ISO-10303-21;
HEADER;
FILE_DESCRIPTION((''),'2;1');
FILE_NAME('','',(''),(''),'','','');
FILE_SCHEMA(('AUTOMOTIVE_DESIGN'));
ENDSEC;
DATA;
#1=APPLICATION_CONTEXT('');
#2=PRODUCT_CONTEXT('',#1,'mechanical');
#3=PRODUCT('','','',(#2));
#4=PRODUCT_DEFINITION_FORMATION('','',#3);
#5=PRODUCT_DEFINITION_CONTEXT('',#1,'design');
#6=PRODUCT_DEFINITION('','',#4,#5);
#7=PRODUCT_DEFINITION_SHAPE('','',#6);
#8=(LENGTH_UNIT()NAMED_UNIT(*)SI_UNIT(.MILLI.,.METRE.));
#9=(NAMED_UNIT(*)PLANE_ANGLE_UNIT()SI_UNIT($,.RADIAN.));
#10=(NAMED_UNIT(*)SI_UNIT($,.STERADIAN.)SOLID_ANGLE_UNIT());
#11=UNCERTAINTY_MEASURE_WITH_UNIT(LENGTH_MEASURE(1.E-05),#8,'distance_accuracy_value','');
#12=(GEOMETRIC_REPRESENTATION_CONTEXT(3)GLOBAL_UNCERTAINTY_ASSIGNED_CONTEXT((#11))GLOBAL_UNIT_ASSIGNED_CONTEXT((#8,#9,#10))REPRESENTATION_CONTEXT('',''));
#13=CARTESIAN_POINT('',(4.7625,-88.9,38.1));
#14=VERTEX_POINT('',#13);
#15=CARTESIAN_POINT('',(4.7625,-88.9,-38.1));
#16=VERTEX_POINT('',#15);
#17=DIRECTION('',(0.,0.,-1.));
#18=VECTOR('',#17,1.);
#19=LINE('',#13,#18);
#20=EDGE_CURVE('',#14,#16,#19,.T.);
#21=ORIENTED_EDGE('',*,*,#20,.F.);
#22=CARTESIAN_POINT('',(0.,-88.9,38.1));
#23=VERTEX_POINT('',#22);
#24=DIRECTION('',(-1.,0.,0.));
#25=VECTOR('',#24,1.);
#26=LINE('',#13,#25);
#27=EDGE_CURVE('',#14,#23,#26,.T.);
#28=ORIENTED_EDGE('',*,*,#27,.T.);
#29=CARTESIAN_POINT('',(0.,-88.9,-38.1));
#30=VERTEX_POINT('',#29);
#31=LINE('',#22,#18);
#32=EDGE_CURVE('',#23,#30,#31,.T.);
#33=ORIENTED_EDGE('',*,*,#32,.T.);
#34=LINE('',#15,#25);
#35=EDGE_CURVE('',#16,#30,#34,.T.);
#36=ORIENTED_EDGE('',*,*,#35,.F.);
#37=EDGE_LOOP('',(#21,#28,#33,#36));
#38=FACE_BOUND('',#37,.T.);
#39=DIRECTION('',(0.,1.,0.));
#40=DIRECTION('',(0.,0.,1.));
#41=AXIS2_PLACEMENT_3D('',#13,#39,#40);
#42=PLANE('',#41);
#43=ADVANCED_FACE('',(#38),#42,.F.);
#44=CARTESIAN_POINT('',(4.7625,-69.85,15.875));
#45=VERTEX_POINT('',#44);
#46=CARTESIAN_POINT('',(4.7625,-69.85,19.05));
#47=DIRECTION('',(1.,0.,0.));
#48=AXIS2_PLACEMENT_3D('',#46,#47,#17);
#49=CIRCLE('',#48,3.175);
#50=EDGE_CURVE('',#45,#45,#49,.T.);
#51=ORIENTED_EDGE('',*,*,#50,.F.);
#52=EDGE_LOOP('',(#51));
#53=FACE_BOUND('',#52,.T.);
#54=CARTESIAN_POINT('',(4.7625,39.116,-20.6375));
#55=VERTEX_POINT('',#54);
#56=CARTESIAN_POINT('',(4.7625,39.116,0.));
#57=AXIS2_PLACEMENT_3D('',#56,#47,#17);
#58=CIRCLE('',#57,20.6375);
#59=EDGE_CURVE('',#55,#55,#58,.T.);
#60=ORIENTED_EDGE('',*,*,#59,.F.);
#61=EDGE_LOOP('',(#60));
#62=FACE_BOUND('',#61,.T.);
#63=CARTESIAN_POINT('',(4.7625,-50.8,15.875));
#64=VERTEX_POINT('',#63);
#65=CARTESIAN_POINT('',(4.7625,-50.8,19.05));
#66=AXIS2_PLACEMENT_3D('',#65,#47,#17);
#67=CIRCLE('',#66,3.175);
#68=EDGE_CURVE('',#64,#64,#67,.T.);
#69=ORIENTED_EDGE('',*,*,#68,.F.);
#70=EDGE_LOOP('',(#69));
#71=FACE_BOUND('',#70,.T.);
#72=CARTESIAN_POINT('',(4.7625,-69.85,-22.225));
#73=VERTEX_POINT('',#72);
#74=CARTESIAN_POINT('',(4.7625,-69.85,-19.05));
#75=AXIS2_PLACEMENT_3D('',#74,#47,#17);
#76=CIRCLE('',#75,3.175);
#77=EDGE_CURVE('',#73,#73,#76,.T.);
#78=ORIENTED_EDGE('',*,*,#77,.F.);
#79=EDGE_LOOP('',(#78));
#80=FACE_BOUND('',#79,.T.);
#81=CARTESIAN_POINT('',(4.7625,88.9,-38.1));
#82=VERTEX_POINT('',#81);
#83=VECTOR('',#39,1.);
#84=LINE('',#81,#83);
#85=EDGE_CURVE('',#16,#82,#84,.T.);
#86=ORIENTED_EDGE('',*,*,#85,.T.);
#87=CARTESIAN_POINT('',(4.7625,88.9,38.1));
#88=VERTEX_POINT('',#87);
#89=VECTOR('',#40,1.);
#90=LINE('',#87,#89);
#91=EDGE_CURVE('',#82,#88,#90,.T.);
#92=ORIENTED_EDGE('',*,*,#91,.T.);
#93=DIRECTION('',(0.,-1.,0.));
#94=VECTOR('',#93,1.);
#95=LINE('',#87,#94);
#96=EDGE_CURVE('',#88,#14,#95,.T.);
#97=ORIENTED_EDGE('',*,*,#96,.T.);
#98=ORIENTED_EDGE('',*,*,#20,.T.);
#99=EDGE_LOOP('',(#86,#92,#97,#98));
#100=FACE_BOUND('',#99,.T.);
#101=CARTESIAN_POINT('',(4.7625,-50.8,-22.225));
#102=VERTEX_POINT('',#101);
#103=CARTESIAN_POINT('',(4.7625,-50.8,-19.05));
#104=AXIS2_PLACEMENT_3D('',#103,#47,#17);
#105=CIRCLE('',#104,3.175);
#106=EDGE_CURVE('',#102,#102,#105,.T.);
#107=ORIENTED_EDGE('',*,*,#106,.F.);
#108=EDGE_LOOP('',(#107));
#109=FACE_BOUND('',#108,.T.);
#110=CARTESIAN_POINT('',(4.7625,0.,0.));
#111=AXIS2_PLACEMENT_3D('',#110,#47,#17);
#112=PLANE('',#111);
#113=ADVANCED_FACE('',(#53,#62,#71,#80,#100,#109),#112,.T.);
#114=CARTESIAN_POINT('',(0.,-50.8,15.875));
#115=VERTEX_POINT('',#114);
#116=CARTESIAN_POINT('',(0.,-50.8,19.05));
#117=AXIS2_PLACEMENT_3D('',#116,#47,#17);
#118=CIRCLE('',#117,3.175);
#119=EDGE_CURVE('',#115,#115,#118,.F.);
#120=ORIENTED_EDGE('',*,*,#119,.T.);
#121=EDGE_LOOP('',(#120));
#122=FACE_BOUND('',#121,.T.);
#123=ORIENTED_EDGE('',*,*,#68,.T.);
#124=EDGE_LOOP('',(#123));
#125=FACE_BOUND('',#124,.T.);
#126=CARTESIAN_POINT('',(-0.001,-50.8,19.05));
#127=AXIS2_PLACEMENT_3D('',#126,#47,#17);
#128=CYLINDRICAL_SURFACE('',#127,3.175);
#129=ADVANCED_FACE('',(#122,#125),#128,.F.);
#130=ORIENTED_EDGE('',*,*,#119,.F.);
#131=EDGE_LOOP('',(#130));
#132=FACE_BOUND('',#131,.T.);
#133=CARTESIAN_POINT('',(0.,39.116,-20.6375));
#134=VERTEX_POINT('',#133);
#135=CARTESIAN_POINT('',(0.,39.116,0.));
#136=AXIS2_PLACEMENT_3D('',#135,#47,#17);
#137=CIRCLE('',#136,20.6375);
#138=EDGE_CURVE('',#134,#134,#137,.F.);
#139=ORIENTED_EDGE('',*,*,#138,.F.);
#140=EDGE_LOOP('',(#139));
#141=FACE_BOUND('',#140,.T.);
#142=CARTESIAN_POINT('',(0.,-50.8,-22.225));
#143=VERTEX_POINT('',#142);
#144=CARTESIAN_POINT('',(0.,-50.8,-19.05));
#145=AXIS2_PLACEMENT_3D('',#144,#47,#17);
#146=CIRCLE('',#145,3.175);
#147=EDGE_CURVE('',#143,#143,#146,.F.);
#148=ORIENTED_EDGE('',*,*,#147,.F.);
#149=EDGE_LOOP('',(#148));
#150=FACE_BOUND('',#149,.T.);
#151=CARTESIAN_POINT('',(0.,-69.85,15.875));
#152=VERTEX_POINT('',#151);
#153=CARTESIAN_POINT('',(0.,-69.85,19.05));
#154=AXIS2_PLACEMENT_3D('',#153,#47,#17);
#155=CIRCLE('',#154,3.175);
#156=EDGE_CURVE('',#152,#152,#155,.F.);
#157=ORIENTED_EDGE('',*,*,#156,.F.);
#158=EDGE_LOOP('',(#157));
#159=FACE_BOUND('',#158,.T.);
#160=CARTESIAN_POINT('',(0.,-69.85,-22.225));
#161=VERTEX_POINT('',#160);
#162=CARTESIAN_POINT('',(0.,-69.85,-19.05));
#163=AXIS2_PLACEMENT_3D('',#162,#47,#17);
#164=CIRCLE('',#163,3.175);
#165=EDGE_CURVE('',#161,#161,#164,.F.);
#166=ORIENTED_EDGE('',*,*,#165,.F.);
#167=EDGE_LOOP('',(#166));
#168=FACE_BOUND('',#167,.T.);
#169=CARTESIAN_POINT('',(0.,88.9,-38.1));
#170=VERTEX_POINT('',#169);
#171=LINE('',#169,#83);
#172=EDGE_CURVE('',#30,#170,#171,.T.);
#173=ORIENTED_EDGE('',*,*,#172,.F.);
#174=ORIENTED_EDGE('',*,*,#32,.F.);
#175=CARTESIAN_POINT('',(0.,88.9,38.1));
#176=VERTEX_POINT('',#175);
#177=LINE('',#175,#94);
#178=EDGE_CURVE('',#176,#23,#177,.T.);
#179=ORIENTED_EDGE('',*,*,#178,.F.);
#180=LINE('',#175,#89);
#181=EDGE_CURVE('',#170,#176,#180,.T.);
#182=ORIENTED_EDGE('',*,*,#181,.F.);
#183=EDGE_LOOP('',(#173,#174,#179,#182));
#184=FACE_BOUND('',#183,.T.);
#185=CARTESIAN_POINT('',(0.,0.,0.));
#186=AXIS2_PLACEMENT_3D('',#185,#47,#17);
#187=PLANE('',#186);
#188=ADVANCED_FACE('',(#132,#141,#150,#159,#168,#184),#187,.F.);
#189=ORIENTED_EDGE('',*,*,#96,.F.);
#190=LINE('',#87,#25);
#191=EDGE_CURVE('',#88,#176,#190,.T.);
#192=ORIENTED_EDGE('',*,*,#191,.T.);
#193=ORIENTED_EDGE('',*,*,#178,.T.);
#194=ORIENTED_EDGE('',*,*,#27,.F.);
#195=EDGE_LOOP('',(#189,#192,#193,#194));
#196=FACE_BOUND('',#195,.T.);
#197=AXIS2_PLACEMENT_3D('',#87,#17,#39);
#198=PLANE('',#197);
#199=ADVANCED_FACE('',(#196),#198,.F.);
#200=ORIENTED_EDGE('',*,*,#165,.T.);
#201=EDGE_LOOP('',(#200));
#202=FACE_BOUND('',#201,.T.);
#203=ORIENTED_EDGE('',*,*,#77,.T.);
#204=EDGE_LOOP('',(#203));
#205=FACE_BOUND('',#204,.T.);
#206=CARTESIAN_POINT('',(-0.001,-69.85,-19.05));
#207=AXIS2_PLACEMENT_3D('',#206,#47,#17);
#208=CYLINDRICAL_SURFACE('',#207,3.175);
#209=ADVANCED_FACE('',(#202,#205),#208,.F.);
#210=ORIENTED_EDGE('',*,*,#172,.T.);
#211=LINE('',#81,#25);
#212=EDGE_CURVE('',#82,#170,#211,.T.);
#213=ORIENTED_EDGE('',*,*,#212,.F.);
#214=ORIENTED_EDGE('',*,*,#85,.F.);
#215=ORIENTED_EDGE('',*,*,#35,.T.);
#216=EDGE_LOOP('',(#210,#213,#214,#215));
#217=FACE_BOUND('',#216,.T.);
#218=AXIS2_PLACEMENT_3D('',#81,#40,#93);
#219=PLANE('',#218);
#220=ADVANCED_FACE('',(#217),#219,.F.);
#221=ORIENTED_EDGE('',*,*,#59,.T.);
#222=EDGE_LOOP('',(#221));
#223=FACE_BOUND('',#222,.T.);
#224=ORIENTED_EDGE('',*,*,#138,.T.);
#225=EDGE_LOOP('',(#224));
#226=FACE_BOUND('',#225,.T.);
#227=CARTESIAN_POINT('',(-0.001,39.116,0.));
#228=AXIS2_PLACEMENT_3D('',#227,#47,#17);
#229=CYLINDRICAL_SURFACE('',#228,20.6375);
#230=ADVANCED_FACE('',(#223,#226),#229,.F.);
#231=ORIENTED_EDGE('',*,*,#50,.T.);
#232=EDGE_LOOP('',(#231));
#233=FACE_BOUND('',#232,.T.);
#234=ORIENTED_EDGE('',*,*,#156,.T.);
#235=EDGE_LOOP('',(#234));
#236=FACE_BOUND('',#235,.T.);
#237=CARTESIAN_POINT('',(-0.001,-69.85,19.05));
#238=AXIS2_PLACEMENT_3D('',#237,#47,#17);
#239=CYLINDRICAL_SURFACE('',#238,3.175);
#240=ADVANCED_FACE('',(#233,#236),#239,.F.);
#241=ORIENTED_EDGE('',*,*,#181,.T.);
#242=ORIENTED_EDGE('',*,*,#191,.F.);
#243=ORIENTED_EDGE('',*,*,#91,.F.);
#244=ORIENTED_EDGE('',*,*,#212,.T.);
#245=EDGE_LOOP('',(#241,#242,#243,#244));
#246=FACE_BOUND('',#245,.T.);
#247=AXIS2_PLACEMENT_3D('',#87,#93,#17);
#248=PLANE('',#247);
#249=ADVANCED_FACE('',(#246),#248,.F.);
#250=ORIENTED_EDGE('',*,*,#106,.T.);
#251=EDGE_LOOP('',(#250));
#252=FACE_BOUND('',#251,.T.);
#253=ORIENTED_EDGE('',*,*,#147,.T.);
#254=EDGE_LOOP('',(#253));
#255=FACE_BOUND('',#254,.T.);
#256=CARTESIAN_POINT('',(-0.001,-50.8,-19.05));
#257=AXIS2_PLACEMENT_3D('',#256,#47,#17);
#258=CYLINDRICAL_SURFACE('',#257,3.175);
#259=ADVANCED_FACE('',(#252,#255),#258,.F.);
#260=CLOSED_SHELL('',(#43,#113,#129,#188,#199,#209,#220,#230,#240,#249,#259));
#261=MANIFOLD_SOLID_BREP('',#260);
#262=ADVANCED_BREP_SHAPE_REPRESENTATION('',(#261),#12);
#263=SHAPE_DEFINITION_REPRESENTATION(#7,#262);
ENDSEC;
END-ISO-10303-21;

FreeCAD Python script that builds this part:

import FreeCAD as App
import Part
import Sketcher
Q = App.Units.Quantity

doc = App.newDocument("Part")
body = doc.addObject("PartDesign::Body", "Body")

# Sketch on YZ plane
sketch1 = body.newObject("Sketcher::SketchObject", "Sketch")
sketch1.AttachmentSupport = (doc.getObject("YZ_Plane"), [""])
sketch1.MapMode = "FlatFace"
sketch1.addGeometry([
    Part.LineSegment(App.Vector(89, 38, 0), App.Vector(-89, 38, 0)),
    Part.LineSegment(App.Vector(-89, 38, 0), App.Vector(-89, -38, 0)),
    Part.LineSegment(App.Vector(-89, -38, 0), App.Vector(89, -38, 0)),
    Part.LineSegment(App.Vector(89, -38, 0), App.Vector(89, 38, 0)),
], False)
sketch1.addConstraint([
    Sketcher.Constraint("Coincident", 0, 2, 1, 1),
    Sketcher.Constraint("Coincident", 1, 2, 2, 1),
    Sketcher.Constraint("Coincident", 2, 2, 3, 1),
    Sketcher.Constraint("Coincident", 3, 2, 0, 1),
    Sketcher.Constraint("Horizontal", 0),
    Sketcher.Constraint("Vertical", 1),
    Sketcher.Constraint("Horizontal", 2),
    Sketcher.Constraint("Vertical", 3),
    Sketcher.Constraint("Symmetric", 0, 2, 2, 2, -1, 1),
    Sketcher.Constraint("DistanceX", 0, 2, 0, 1, Q("7 in")),
    Sketcher.Constraint("DistanceY", 1, 2, 1, 1, Q("3 in")),
])
pad1 = body.newObject("PartDesign::Pad", "Pad")
pad1.Profile = sketch1
pad1.Length = Q("0.1875 in")

# Sketch on YZ plane
sketch2 = body.newObject("Sketcher::SketchObject", "Sketch001")
sketch2.AttachmentSupport = (doc.getObject("YZ_Plane"), [""])
sketch2.MapMode = "FlatFace"
sketch2.AttachmentOffset = App.Placement(App.Vector(0, 0, 0.1875 * 25.4), App.Rotation())
sketch2.addGeometry(Part.Circle(App.Vector(39, 0, 0), App.Vector(0, 0, 1), 21), False)
sketch2.addConstraint([
    Sketcher.Constraint("PointOnObject", 0, 3, -1),
    Sketcher.Constraint("Diameter", 0, Q("1.625 in")),
    Sketcher.Constraint("DistanceX", -1, 1, 0, 3, Q("1.54 in")),
])
pocket1 = body.newObject("PartDesign::Pocket", "Pocket")
pocket1.Profile = sketch2
pocket1.Type = "UpToFirst"

# Sketch on YZ plane
sketch3 = body.newObject("Sketcher::SketchObject", "Sketch002")
sketch3.AttachmentSupport = (doc.getObject("YZ_Plane"), [""])
sketch3.MapMode = "FlatFace"
sketch3.AttachmentOffset = App.Placement(App.Vector(0, 0, 0.1875 * 25.4), App.Rotation())
sketch3.addGeometry(Part.Circle(App.Vector(-50.8, 19.1, 0), App.Vector(0, 0, 1), 3.2), False)
sketch3.addConstraint([
    Sketcher.Constraint("Diameter", 0, Q("0.25 in")),
    Sketcher.Constraint("DistanceX", 0, 3, -1, 1, Q("2 in")),
    Sketcher.Constraint("DistanceY", -1, 1, 0, 3, Q("0.75 in")),
])
pocket2 = body.newObject("PartDesign::Pocket", "Pocket001")
pocket2.Profile = sketch3
pocket2.Type = "UpToFirst"

# Sketch on YZ plane
sketch4 = body.newObject("Sketcher::SketchObject", "Sketch003")
sketch4.AttachmentSupport = (doc.getObject("YZ_Plane"), [""])
sketch4.MapMode = "FlatFace"
sketch4.AttachmentOffset = App.Placement(App.Vector(0, 0, 0.1875 * 25.4), App.Rotation())
sketch4.addGeometry(Part.Circle(App.Vector(-50.8, -19.1, 0), App.Vector(0, 0, 1), 3.2), False)
sketch4.addConstraint([
    Sketcher.Constraint("Diameter", 0, Q("0.25 in")),
    Sketcher.Constraint("DistanceX", 0, 3, -1, 1, Q("2 in")),
    Sketcher.Constraint("DistanceY", 0, 3, -1, 1, Q("0.75 in")),
])
pocket3 = body.newObject("PartDesign::Pocket", "Pocket002")
pocket3.Profile = sketch4
pocket3.Type = "UpToFirst"

# Sketch on YZ plane
sketch5 = body.newObject("Sketcher::SketchObject", "Sketch004")
sketch5.AttachmentSupport = (doc.getObject("YZ_Plane"), [""])
sketch5.MapMode = "FlatFace"
sketch5.AttachmentOffset = App.Placement(App.Vector(0, 0, 0.1875 * 25.4), App.Rotation())
sketch5.addGeometry(Part.Circle(App.Vector(-69.8, -19.1, 0), App.Vector(0, 0, 1), 3.2), False)
sketch5.addConstraint([
    Sketcher.Constraint("Diameter", 0, Q("0.25 in")),
    Sketcher.Constraint("DistanceX", 0, 3, -1, 1, Q("2.75 in")),
    Sketcher.Constraint("DistanceY", 0, 3, -1, 1, Q("0.75 in")),
])
pocket4 = body.newObject("PartDesign::Pocket", "Pocket003")
pocket4.Profile = sketch5
pocket4.Type = "UpToFirst"

# Sketch on YZ plane
sketch6 = body.newObject("Sketcher::SketchObject", "Sketch005")
sketch6.AttachmentSupport = (doc.getObject("YZ_Plane"), [""])
sketch6.MapMode = "FlatFace"
sketch6.AttachmentOffset = App.Placement(App.Vector(0, 0, 0.1875 * 25.4), App.Rotation())
sketch6.addGeometry(Part.Circle(App.Vector(-69.8, 19.1, 0), App.Vector(0, 0, 1), 3.2), False)
sketch6.addConstraint([
    Sketcher.Constraint("Diameter", 0, Q("0.25 in")),
    Sketcher.Constraint("DistanceX", 0, 3, -1, 1, Q("2.75 in")),
    Sketcher.Constraint("DistanceY", -1, 1, 0, 3, Q("0.75 in")),
])
pocket5 = body.newObject("PartDesign::Pocket", "Pocket004")
pocket5.Profile = sketch6
pocket5.Type = "UpToFirst"

doc.recompute()
